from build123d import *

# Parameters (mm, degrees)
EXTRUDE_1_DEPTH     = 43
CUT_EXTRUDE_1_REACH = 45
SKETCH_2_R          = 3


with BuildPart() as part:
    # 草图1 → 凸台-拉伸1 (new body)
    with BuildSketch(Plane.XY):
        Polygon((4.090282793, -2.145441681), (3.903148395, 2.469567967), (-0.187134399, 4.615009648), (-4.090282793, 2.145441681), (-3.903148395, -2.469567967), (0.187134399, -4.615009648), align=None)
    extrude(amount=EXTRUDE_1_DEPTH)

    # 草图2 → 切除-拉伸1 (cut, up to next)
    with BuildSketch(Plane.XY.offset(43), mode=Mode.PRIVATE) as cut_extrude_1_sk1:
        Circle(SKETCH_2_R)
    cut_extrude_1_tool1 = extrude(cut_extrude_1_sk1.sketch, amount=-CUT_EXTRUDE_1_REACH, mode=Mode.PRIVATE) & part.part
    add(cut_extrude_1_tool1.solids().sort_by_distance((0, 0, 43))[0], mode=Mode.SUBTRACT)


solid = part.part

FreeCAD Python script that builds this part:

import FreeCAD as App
import Part
import Sketcher


def add_polygon(sketch, points):
    """Adds a closed chain of lines whose ends are joined by coincident constraints."""
    first, n = sketch.GeometryCount, len(points)
    for a, b in zip(points, points[1:] + points[:1]):
        sketch.addGeometry(Part.LineSegment(App.Vector(*a, 0), App.Vector(*b, 0)), False)
    for i in range(n):
        sketch.addConstraint(Sketcher.Constraint("Coincident", first + i, 2, first + (i + 1) % n, 1))

doc = App.newDocument("Part")
params = doc.addObject("Spreadsheet::Sheet", "Params")
for row, (alias, value) in enumerate([
    ("pad1_length", "43 mm"),
    ("sketch2_diameter", "6 mm"),
], start=1):
    params.set(f"A{row}", alias)
    params.set(f"B{row}", "=" + value)
    params.setAlias(f"B{row}", alias)

body = doc.addObject("PartDesign::Body", "Body")

# Sketch on XY plane
sketch1 = doc.addObject("Sketcher::SketchObject", "Sketch")
body.addObject(sketch1)
sketch1.AttachmentSupport = (doc.XY_Plane, [""])
sketch1.MapMode = "FlatFace"
add_polygon(sketch1, [(4.1, -2.1), (3.9, 2.5), (-0.2, 4.6), (-4.1, 2.1), (-3.9, -2.5), (0.2, -4.6)])  # lines 0-5
sketch1.addConstraint(Sketcher.Constraint("Symmetric", 0, 2, 3, 2, -1, 1))
sketch1.addConstraint(Sketcher.Constraint("Symmetric", 1, 2, 4, 2, -1, 1))
sketch1.addConstraint(Sketcher.Constraint("Symmetric", 2, 2, 5, 2, -1, 1))
sketch1.addConstraint(Sketcher.Constraint("Equal", 0, 1))
sketch1.addConstraint(Sketcher.Constraint("Equal", 1, 2))
sketch1.addConstraint(Sketcher.Constraint("DistanceX", -1, 1, 0, 2, 3.903148))
sketch1.addConstraint(Sketcher.Constraint("DistanceY", -1, 1, 1, 2, 4.61501))
sketch1.addConstraint(Sketcher.Constraint("DistanceY", -1, 1, 2, 2, 2.145442))
sketch1.addConstraint(Sketcher.Constraint("DistanceY", 0, 2, 1, 2, 2.145442))
pad1 = doc.addObject("PartDesign::Pad", "Pad")
body.addObject(pad1)
pad1.Profile = sketch1
pad1.setExpression("Length", "Params.pad1_length")

# Sketch on XY plane
sketch2 = doc.addObject("Sketcher::SketchObject", "Sketch001")
body.addObject(sketch2)
sketch2.AttachmentSupport = (doc.XY_Plane, [""])
sketch2.MapMode = "FlatFace"
sketch2.AttachmentOffset = App.Placement(App.Vector(0, 0, 43), App.Rotation())
sketch2.addGeometry(Part.Circle(App.Vector(0, 0, 0), App.Vector(0, 0, 1), 3), False)
sketch2.addConstraint(Sketcher.Constraint("Coincident", 0, 3, -1, 1))
sketch2.addConstraint(Sketcher.Constraint("Diameter", 0, 6.0))
sketch2.setExpression("Constraints[1]", "Params.sketch2_diameter")
pocket1 = doc.addObject("PartDesign::Pocket", "Pocket")
body.addObject(pocket1)
pocket1.Profile = sketch2
pocket1.Type = "UpToFirst"

doc.recompute()
